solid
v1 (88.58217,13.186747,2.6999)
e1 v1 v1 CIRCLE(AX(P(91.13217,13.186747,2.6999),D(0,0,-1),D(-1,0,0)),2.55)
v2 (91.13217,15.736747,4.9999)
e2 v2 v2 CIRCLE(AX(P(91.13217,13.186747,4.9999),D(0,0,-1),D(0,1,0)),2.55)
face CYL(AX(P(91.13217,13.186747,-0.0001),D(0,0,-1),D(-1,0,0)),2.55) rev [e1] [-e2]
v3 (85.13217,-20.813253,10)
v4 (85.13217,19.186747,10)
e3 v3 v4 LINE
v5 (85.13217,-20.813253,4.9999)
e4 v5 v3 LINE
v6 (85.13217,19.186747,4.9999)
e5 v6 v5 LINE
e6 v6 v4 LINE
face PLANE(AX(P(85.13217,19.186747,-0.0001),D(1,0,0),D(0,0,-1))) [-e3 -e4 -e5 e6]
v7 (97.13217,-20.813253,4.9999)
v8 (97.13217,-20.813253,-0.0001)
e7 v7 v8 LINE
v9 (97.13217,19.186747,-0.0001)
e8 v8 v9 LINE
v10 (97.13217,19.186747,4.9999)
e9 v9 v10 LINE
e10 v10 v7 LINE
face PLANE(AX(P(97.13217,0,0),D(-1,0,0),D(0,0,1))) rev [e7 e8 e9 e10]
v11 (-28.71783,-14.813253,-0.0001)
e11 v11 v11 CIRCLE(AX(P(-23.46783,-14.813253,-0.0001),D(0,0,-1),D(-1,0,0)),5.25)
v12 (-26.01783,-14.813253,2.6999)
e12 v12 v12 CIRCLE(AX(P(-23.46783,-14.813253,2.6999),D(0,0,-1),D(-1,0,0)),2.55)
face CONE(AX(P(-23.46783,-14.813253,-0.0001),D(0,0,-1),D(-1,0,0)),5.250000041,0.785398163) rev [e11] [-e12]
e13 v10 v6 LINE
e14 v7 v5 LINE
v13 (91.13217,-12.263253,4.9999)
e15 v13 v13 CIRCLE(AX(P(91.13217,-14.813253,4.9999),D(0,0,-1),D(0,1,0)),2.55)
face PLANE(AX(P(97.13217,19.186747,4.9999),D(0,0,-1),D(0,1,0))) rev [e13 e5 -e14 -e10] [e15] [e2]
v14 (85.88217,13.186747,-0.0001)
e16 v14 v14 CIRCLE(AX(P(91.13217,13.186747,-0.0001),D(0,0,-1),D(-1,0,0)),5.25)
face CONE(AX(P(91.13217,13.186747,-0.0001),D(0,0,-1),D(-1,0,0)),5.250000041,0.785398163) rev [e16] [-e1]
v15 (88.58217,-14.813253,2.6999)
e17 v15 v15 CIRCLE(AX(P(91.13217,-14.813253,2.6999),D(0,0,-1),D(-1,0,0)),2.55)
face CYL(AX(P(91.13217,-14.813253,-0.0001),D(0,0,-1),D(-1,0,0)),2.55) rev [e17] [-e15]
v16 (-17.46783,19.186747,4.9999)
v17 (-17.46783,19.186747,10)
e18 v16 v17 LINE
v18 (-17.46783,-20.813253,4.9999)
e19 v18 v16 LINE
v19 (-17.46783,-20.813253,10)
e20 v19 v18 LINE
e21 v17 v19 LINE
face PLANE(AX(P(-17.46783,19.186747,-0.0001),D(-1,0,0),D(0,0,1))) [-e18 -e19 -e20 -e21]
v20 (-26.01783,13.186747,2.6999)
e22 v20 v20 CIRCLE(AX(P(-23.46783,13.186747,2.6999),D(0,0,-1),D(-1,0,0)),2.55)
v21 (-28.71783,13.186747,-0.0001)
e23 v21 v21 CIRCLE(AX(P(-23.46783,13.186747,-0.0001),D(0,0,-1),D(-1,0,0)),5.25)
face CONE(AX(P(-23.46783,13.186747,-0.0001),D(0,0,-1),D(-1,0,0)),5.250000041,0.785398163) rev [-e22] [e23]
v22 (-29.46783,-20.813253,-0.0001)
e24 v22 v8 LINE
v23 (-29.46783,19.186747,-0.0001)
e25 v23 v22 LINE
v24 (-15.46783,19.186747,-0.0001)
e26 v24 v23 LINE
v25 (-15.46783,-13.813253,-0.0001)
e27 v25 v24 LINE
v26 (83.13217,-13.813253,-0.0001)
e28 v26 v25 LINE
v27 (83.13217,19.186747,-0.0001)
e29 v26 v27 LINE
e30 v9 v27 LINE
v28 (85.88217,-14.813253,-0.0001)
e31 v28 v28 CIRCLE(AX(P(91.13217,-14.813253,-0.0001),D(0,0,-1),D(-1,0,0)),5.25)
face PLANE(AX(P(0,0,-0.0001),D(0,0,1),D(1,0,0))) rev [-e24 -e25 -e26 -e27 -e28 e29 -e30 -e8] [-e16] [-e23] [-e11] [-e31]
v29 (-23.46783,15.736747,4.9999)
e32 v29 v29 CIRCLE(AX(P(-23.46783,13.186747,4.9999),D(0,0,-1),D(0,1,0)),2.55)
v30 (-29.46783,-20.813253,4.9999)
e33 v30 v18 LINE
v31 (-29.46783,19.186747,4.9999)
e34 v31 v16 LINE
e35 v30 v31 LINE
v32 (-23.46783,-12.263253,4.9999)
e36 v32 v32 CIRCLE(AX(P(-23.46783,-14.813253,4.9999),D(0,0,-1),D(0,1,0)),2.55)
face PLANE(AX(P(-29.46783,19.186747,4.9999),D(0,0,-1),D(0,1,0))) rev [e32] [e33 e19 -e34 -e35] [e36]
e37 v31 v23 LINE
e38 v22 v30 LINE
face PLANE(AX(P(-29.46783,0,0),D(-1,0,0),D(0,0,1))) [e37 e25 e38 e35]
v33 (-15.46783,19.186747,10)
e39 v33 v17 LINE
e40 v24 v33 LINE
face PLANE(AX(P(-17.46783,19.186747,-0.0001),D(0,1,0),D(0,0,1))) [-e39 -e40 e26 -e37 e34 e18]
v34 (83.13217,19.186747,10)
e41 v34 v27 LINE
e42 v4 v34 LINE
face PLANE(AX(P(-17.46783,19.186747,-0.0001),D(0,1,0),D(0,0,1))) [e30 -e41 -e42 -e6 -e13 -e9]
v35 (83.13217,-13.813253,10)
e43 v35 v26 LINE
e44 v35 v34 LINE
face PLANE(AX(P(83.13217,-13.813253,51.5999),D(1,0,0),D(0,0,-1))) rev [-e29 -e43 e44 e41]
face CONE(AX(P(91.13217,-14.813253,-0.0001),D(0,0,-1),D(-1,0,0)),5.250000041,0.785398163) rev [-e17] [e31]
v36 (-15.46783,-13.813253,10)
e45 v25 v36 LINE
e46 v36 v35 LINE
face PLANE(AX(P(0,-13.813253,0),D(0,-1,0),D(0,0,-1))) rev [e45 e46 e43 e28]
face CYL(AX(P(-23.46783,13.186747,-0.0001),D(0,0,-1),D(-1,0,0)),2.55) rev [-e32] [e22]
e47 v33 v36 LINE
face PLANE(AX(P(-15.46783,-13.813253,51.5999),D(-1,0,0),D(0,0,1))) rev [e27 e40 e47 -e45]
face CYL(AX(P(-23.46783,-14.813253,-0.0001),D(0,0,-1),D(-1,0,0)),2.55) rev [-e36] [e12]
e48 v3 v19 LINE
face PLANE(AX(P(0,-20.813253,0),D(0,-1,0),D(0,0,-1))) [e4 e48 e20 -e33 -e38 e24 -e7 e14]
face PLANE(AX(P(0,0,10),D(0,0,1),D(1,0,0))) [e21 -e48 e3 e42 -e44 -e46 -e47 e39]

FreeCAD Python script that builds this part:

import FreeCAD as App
import Part
import Sketcher
from FreeCAD import Vector
Q = App.Units.Quantity


def add_polygon(sketch, points):
    """Adds a closed chain of lines whose ends are joined by coincident constraints."""
    first, n = sketch.GeometryCount, len(points)
    for a, b in zip(points, points[1:] + points[:1]):
        sketch.addGeometry(Part.LineSegment(App.Vector(*a, 0), App.Vector(*b, 0)), False)
    for i in range(n):
        sketch.addConstraint(Sketcher.Constraint("Coincident", first + i, 2, first + (i + 1) % n, 1))

doc = App.newDocument("Part")
params = doc.addObject("Spreadsheet::Sheet", "Params")
for row, (alias, value) in enumerate([
    ("sketch1_height", "35 mm"),
    ("sketch1_width", "102.6 mm"),
    ("pad1_length", "10 mm"),
    ("pad1_length2", "0.0001 mm"),
    ("sketch2_width", "98.6 mm"),
    ("sketch2_height", "51.6 mm"),
    ("pocket1_length", "33 mm"),
    ("sketch3_width", "102.6 mm"),
    ("pad2_length", "5 mm"),
    ("sketch4_width", "40 mm"),
    ("sketch4_height", "5 mm"),
    ("pad3_length", "12 mm"),
    ("sketch5_width", "40 mm"),
    ("sketch5_height", "5 mm"),
    ("pad4_length", "12 mm"),
    ("sketch6_diameter", "5.1 mm"),
    ("hole_diameter", "5.1 mm"),
    ("hole_csink_diameter", "10.5 mm"),
], start=1):
    params.set(f"A{row}", alias)
    params.set(f"B{row}", "=" + value)
    params.setAlias(f"B{row}", alias)

body = doc.addObject("PartDesign::Body", "Body")

sketch1 = body.newObject("Sketcher::SketchObject", "Sketch")
sketch1.AttachmentSupport = (doc.getObject("XY_Plane"), [""])
sketch1.MapMode = "FlatFace"
add_polygon(sketch1, [(-17.46783, 19.186747), (-17.46783, -15.813253), (85.13217, -15.813253), (85.13217, 19.186747)])
sketch1.addConstraint([
    Sketcher.Constraint("Vertical", 0),
    Sketcher.Constraint("Horizontal", 1),
    Sketcher.Constraint("Vertical", 2),
    Sketcher.Constraint("Horizontal", 3),
    Sketcher.Constraint("DistanceY", 0, 2, 0, 1, Q("35 mm")),
    Sketcher.Constraint("DistanceX", 1, 1, 1, 2, Q("102.6 mm")),
    Sketcher.Constraint("DistanceX", 0, 2, -1, 1, Q("17.46783 mm")),
    Sketcher.Constraint("DistanceY", 0, 2, -1, 1, Q("15.813253 mm")),
])
sketch1.setExpression("Constraints[8]", "Params.sketch1_height")
sketch1.setExpression("Constraints[9]", "Params.sketch1_width")
pad1 = body.newObject("PartDesign::Pad", "Pad")
pad1.Profile = sketch1
pad1.Type = "TwoLengths"
pad1.setExpression("Length", "Params.pad1_length")
pad1.setExpression("Length2", "Params.pad1_length2")

sketch2 = body.newObject("Sketcher::SketchObject", "Sketch001")
sketch2.AttachmentSupport = (doc.getObject("XZ_Plane"), [""])
sketch2.MapMode = "FlatFace"
sketch2.AttachmentOffset = App.Placement(Vector(0, 0, -19.186747), App.Rotation())
add_polygon(sketch2, [(-15.46783, -0.0001), (-15.46783, 51.5999), (83.13217, 51.5999), (83.13217, -0.0001)])
sketch2.addConstraint([
    Sketcher.Constraint("Vertical", 0),
    Sketcher.Constraint("Horizontal", 1),
    Sketcher.Constraint("Vertical", 2),
    Sketcher.Constraint("Horizontal", 3),
    Sketcher.Constraint("DistanceX", 1, 1, 1, 2, Q("98.6 mm")),
    Sketcher.Constraint("DistanceY", 0, 1, 0, 2, Q("51.6 mm")),
    Sketcher.Constraint("DistanceY", -1, 1, 0, 2, Q("51.5999 mm")),
    Sketcher.Constraint("DistanceX", 0, 2, -1, 1, Q("15.46783 mm")),
])
sketch2.setExpression("Constraints[8]", "Params.sketch2_width")
sketch2.setExpression("Constraints[9]", "Params.sketch2_height")
pocket1 = body.newObject("PartDesign::Pocket", "Pocket")
pocket1.Profile = sketch2
pocket1.setExpression("Length", "Params.pocket1_length")
pocket1.Reversed = True

sketch3 = body.newObject("Sketcher::SketchObject", "Sketch002")
sketch3.AttachmentSupport = (doc.getObject("XZ_Plane"), [""])
sketch3.MapMode = "FlatFace"
sketch3.AttachmentOffset = App.Placement(Vector(0, 0, 15.813253), App.Rotation())
add_polygon(sketch3, [(-17.46783, 10), (-17.46783, -0.0001), (85.13217, -0.0001), (85.13217, 10)])
sketch3.addConstraint([
    Sketcher.Constraint("Vertical", 0),
    Sketcher.Constraint("Horizontal", 1),
    Sketcher.Constraint("Vertical", 2),
    Sketcher.Constraint("Horizontal", 3),
    Sketcher.Constraint("DistanceX", 1, 1, 1, 2, Q("102.6 mm")),
    Sketcher.Constraint("DistanceY", -1, 1, 2, 2, Q("10 mm")),
    Sketcher.Constraint("DistanceY", 0, 2, 0, 1, Q("10.0001 mm")),
    Sketcher.Constraint("DistanceX", 0, 2, -1, 1, Q("17.46783 mm")),
])
sketch3.setExpression("Constraints[8]", "Params.sketch3_width")
pad2 = body.newObject("PartDesign::Pad", "Pad001")
pad2.Profile = sketch3
pad2.setExpression("Length", "Params.pad2_length")

sketch4 = body.newObject("Sketcher::SketchObject", "Sketch003")
sketch4.AttachmentSupport = (doc.getObject("YZ_Plane"), [""])
sketch4.MapMode = "FlatFace"
sketch4.AttachmentOffset = App.Placement(Vector(0, 0, -17.46783), App.Rotation())
add_polygon(sketch4, [(19.186747, -0.0001), (-20.813253, -0.0001), (-20.813253, 4.9999), (19.186747, 4.9999)])
sketch4.addConstraint([
    Sketcher.Constraint("Horizontal", 0),
    Sketcher.Constraint("Vertical", 1),
    Sketcher.Constraint("Horizontal", 2),
    Sketcher.Constraint("Vertical", 3),
    Sketcher.Constraint("DistanceX", 0, 2, 0, 1, Q("40 mm")),
    Sketcher.Constraint("DistanceY", 1, 1, 1, 2, Q("5 mm")),
    Sketcher.Constraint("DistanceY", 0, 2, -1, 1, Q("0.0001 mm")),
    Sketcher.Constraint("DistanceX", 0, 2, -1, 1, Q("20.813253 mm")),
])
sketch4.setExpression("Constraints[8]", "Params.sketch4_width")
sketch4.setExpression("Constraints[9]", "Params.sketch4_height")
pad3 = body.newObject("PartDesign::Pad", "Pad002")
pad3.Profile = sketch4
pad3.setExpression("Length", "Params.pad3_length")
pad3.Reversed = True

sketch5 = body.newObject("Sketcher::SketchObject", "Sketch004")
sketch5.AttachmentSupport = (doc.getObject("YZ_Plane"), [""])
sketch5.MapMode = "FlatFace"
sketch5.AttachmentOffset = App.Placement(Vector(0, 0, 85.13217), App.Rotation())
add_polygon(sketch5, [(19.186747, 4.9999), (-20.813253, 4.9999), (-20.813253, -0.0001), (19.186747, -0.0001)])
sketch5.addConstraint([
    Sketcher.Constraint("Horizontal", 0),
    Sketcher.Constraint("Vertical", 1),
    Sketcher.Constraint("Horizontal", 2),
    Sketcher.Constraint("Vertical", 3),
    Sketcher.Constraint("DistanceX", 0, 2, 0, 1, Q("40 mm")),
    Sketcher.Constraint("DistanceY", 1, 2, 1, 1, Q("5 mm")),
    Sketcher.Constraint("DistanceY", -1, 1, 0, 2, Q("4.9999 mm")),
    Sketcher.Constraint("DistanceX", 0, 2, -1, 1, Q("20.813253 mm")),
])
sketch5.setExpression("Constraints[8]", "Params.sketch5_width")
sketch5.setExpression("Constraints[9]", "Params.sketch5_height")
pad4 = body.newObject("PartDesign::Pad", "Pad003")
pad4.Profile = sketch5
pad4.setExpression("Length", "Params.pad4_length")

sketch6 = body.newObject("Sketcher::SketchObject", "Sketch005")
sketch6.AttachmentSupport = (doc.getObject("XY_Plane"), [""])
sketch6.MapMode = "FlatFace"
sketch6.AttachmentOffset = App.Placement(Vector(0, 0, -0.0001), App.Rotation())
sketch6.addGeometry([
    Part.Circle(Vector(91.13217, 13.186747, 0), Vector(0, 0, 1), 2.55),
    Part.Circle(Vector(91.13217, -14.813253, 0), Vector(0, 0, 1), 2.55),
    Part.Circle(Vector(-23.46783, 13.186747, 0), Vector(0, 0, 1), 2.55),
    Part.Circle(Vector(-23.46783, -14.813253, 0), Vector(0, 0, 1), 2.55),
], False)
sketch6.addConstraint([
    Sketcher.Constraint("Equal", 0, 1),
    Sketcher.Constraint("Equal", 1, 2),
    Sketcher.Constraint("Equal", 2, 3),
    Sketcher.Constraint("Horizontal", 0, 3, 2, 3),
    Sketcher.Constraint("Horizontal", 1, 3, 3, 3),
    Sketcher.Constraint("Vertical", 0, 3, 1, 3),
    Sketcher.Constraint("Vertical", 2, 3, 3, 3),
    Sketcher.Constraint("Diameter", 0, Q("5.1 mm")),
    Sketcher.Constraint("DistanceY", 1, 3, 0, 3, Q("28 mm")),
    Sketcher.Constraint("DistanceX", 2, 3, 0, 3, Q("114.6 mm")),
    Sketcher.Constraint("DistanceX", -1, 1, 0, 3, Q("91.13217 mm")),
    Sketcher.Constraint("DistanceY", -1, 1, 0, 3, Q("13.186747 mm")),
])
sketch6.setExpression("Constraints[7]", "Params.sketch6_diameter")
doc.recompute()
hole = body.newObject("PartDesign::Hole", "Hole")
hole.Profile = sketch6
hole.ThreadType = "None"
hole.setExpression("Diameter", "Params.hole_diameter")
hole.DepthType = "ThroughAll"
hole.HoleCutType = "Countersink"
hole.setExpression("HoleCutDiameter", "Params.hole_csink_diameter")
hole.HoleCutCountersinkAngle = 90
hole.Reversed = True

doc.recompute()
